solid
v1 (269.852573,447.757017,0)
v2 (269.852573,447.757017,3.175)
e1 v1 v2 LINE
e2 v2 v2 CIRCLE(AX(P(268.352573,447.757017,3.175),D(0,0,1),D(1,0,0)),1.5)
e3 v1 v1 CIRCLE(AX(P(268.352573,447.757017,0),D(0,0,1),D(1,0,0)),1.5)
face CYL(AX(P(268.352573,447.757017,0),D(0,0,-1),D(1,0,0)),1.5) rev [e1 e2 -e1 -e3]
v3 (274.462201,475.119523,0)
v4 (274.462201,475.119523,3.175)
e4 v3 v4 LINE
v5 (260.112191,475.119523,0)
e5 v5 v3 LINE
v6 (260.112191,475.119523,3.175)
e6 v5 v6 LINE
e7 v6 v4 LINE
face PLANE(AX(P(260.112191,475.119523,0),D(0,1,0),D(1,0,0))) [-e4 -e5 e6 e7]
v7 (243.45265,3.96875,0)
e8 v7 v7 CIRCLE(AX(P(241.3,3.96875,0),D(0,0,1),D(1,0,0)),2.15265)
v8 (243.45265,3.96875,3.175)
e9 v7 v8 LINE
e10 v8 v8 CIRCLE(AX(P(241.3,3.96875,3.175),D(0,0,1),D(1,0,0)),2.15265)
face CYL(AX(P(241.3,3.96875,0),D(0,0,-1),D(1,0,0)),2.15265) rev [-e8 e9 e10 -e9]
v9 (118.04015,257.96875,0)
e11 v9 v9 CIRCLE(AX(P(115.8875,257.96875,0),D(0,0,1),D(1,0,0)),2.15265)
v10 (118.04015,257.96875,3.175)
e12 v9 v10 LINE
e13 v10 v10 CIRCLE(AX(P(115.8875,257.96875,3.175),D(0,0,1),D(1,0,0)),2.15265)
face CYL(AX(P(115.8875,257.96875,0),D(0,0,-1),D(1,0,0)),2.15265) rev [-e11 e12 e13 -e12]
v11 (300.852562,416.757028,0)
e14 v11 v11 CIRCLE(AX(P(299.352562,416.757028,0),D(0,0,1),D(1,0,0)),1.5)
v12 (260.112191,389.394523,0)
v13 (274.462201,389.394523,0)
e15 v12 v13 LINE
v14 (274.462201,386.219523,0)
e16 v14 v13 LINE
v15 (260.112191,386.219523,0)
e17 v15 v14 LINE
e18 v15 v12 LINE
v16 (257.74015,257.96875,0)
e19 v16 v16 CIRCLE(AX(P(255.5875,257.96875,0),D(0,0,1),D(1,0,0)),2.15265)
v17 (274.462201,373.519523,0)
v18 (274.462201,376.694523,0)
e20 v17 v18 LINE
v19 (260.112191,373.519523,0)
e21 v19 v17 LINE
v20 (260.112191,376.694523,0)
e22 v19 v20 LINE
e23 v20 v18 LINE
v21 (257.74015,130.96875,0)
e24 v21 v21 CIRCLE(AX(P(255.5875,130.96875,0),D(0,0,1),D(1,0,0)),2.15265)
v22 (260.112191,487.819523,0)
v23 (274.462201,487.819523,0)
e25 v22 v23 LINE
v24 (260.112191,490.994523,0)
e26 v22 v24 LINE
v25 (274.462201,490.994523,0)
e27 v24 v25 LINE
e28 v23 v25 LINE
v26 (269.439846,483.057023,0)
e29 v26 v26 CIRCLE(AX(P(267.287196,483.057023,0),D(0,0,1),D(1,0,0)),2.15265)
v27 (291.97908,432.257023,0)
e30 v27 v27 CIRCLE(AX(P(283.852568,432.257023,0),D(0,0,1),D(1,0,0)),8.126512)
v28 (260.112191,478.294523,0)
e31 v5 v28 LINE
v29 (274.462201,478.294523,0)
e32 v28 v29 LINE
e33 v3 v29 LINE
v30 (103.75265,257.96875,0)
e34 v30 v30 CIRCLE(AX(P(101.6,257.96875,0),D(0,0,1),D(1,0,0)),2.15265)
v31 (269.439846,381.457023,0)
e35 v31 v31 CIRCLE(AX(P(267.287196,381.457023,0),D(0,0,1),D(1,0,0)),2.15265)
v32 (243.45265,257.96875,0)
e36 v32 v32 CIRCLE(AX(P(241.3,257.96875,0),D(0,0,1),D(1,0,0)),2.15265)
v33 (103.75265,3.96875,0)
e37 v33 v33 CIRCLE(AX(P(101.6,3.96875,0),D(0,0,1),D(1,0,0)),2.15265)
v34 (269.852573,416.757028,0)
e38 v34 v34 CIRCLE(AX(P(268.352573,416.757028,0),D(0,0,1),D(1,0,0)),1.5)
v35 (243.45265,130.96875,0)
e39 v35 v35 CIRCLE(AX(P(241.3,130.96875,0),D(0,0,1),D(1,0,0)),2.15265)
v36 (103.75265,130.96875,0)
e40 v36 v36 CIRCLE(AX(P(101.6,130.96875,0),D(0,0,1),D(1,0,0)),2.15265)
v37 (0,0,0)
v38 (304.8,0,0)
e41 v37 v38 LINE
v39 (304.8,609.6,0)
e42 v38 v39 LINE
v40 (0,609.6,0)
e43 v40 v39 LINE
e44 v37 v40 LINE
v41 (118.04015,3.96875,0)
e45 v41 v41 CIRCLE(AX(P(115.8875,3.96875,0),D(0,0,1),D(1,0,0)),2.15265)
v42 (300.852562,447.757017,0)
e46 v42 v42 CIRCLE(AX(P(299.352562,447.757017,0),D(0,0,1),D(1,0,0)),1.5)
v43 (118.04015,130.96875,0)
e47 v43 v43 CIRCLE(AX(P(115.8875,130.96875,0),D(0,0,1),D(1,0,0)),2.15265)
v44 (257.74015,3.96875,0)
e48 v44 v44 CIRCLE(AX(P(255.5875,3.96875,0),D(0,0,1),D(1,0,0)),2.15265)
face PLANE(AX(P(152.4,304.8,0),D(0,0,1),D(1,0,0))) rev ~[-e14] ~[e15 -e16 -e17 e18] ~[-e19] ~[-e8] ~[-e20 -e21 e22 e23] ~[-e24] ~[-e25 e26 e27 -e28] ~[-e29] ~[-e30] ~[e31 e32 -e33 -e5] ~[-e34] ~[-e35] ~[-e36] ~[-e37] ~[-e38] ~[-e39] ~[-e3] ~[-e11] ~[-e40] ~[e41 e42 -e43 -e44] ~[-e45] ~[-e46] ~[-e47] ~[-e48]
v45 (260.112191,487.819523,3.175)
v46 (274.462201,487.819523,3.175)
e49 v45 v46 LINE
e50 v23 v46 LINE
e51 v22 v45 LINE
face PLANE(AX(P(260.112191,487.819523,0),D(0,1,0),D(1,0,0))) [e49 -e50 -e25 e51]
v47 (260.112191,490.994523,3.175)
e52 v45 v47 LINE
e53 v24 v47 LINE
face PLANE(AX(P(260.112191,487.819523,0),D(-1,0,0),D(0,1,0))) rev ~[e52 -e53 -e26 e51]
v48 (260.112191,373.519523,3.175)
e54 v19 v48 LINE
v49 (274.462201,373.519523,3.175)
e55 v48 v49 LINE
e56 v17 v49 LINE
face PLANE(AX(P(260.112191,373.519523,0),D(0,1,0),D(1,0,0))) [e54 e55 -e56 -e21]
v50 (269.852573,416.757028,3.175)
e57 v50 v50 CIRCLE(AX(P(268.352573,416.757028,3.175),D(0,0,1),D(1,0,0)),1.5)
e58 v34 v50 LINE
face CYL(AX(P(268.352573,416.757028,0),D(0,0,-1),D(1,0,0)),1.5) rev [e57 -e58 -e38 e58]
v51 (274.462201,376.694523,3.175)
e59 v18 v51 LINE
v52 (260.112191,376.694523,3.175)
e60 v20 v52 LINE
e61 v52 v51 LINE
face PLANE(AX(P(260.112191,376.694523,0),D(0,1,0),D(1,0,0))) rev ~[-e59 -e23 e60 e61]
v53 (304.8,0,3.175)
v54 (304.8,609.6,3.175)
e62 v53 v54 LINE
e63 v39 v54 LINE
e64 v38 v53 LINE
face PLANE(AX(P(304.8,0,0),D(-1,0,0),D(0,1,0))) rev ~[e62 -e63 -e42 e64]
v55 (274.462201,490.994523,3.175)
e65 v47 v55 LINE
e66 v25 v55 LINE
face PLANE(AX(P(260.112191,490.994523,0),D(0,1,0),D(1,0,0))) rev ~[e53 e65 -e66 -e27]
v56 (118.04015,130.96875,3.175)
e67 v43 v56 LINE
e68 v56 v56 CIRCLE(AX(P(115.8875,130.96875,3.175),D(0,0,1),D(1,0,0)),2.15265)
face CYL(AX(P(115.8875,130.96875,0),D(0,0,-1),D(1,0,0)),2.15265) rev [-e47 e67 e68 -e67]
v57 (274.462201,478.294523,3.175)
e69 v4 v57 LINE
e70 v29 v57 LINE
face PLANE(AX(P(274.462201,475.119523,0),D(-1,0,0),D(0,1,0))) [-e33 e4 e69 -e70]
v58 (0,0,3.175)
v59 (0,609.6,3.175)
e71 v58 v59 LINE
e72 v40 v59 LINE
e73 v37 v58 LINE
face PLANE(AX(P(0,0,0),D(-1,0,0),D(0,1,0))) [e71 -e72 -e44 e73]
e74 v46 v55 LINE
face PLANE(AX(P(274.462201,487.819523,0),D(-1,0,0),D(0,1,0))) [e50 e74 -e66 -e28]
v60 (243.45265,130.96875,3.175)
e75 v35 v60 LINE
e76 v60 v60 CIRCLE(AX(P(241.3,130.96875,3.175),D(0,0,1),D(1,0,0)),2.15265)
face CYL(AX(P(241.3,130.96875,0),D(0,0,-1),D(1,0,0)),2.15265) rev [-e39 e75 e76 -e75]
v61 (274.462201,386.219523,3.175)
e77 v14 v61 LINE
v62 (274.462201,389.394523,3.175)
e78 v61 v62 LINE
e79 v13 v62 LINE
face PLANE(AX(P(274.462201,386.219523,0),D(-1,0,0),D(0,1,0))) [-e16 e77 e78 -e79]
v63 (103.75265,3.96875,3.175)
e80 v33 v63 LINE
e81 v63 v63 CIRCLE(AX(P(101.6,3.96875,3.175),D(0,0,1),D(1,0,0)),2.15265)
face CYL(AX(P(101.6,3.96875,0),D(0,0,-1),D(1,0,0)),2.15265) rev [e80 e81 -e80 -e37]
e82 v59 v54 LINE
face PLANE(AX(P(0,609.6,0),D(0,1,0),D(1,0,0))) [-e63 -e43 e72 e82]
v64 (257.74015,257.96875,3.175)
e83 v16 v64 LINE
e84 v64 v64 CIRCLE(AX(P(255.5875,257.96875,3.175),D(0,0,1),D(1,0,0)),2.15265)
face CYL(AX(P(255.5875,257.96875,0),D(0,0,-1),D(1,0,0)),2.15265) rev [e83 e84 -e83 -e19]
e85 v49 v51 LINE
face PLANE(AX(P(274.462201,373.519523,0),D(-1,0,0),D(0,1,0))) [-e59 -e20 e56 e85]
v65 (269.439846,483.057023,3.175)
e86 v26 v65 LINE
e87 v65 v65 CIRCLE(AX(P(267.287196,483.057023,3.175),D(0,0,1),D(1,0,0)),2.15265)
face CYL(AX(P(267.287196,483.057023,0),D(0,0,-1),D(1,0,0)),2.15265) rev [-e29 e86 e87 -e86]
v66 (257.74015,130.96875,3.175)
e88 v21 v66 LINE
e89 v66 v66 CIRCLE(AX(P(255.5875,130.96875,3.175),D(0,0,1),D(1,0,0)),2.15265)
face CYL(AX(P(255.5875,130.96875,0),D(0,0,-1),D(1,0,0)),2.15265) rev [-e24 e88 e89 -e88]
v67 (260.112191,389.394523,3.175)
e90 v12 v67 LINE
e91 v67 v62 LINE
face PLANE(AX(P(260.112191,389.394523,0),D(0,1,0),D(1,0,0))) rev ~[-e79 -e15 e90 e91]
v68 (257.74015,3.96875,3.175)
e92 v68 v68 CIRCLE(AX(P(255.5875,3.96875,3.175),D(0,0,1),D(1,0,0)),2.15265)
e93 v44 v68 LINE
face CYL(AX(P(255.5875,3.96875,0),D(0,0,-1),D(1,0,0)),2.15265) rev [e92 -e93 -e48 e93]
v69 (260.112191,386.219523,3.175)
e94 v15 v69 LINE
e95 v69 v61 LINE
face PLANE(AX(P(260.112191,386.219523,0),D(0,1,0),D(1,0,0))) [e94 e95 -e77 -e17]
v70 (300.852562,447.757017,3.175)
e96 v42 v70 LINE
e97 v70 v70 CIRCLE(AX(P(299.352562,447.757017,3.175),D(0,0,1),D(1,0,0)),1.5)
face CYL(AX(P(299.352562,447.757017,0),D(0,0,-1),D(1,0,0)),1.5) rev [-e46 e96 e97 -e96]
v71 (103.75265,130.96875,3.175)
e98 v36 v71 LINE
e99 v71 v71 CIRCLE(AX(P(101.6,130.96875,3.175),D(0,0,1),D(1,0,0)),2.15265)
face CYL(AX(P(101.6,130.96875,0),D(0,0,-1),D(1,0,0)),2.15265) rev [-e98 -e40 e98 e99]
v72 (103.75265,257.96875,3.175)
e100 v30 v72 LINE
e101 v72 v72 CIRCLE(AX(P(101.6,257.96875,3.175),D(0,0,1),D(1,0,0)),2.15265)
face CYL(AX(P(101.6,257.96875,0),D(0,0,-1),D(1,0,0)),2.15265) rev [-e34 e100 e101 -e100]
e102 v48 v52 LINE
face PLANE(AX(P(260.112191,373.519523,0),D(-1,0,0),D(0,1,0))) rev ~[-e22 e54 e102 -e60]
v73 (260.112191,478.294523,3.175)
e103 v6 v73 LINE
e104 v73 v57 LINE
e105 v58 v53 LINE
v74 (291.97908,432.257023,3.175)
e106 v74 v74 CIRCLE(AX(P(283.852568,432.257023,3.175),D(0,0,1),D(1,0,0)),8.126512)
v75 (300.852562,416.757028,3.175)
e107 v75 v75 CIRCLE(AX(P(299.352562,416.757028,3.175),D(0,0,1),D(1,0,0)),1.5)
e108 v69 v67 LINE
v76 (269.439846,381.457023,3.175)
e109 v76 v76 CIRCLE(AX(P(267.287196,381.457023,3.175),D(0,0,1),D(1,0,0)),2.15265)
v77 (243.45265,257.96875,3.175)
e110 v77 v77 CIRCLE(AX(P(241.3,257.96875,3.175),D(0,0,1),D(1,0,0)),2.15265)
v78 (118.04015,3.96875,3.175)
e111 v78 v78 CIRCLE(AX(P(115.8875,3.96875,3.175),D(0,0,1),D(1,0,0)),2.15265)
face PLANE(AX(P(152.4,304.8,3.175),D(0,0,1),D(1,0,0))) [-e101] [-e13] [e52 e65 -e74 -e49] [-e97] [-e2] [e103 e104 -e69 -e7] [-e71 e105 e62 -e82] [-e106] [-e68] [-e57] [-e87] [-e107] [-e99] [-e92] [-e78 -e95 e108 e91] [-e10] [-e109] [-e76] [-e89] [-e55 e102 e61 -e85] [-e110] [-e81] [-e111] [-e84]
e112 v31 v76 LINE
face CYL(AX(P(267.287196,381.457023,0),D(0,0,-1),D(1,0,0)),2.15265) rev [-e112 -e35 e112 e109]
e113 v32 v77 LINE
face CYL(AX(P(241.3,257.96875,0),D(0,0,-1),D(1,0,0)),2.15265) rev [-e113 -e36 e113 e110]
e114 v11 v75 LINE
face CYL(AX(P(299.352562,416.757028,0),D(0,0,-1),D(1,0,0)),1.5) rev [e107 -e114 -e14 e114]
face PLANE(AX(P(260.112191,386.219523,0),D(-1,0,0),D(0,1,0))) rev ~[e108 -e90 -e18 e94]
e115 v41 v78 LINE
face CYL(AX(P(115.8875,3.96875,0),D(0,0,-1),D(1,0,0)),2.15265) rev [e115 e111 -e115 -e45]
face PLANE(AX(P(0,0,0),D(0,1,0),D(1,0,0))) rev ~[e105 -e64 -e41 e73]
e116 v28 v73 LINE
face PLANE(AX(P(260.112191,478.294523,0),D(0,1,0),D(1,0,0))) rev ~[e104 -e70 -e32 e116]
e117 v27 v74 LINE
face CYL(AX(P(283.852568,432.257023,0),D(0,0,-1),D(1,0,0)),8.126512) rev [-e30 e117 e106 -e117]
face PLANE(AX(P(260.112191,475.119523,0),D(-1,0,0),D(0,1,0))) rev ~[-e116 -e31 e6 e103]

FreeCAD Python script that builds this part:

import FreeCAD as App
import Part
import Sketcher
from FreeCAD import Vector
Q = App.Units.Quantity


def add_polygon(sketch, points):
    """Adds a closed chain of lines whose ends are joined by coincident constraints."""
    first, n = sketch.GeometryCount, len(points)
    for a, b in zip(points, points[1:] + points[:1]):
        sketch.addGeometry(Part.LineSegment(App.Vector(*a, 0), App.Vector(*b, 0)), False)
    for i in range(n):
        sketch.addConstraint(Sketcher.Constraint("Coincident", first + i, 2, first + (i + 1) % n, 1))

doc = App.newDocument("Part")
body = doc.addObject("PartDesign::Body", "Body")

sketch1 = body.newObject("Sketcher::SketchObject", "Sketch")
sketch1.AttachmentSupport = (doc.getObject("XY_Plane"), [""])
sketch1.MapMode = "FlatFace"
add_polygon(sketch1, [(0, 609.6), (0, 0), (304.8, 0), (304.8, 609.6)])
sketch1.addGeometry(Part.Circle(Vector(101.6, 4, 0), Vector(0, 0, 1), 2.2), False)
sketch1.addGeometry(Part.Circle(Vector(115.9, 4, 0), Vector(0, 0, 1), 2.2), False)
sketch1.addGeometry(Part.Circle(Vector(101.6, 131, 0), Vector(0, 0, 1), 2.2), False)
sketch1.addGeometry(Part.Circle(Vector(115.9, 131, 0), Vector(0, 0, 1), 2.2), False)
sketch1.addGeometry(Part.Circle(Vector(241.3, 4, 0), Vector(0, 0, 1), 2.2), False)
sketch1.addGeometry(Part.Circle(Vector(255.6, 4, 0), Vector(0, 0, 1), 2.2), False)
sketch1.addGeometry(Part.Circle(Vector(241.3, 131, 0), Vector(0, 0, 1), 2.2), False)
sketch1.addGeometry(Part.Circle(Vector(255.6, 131, 0), Vector(0, 0, 1), 2.2), False)
sketch1.addGeometry(Part.Circle(Vector(101.6, 258, 0), Vector(0, 0, 1), 2.2), False)
sketch1.addGeometry(Part.Circle(Vector(115.9, 258, 0), Vector(0, 0, 1), 2.2), False)
sketch1.addGeometry(Part.Circle(Vector(241.3, 258, 0), Vector(0, 0, 1), 2.2), False)
sketch1.addGeometry(Part.Circle(Vector(255.6, 258, 0), Vector(0, 0, 1), 2.2), False)
add_polygon(sketch1, [(274.5, 373.5), (260.1, 373.5), (260.1, 376.7), (274.5, 376.7)])
sketch1.addGeometry(Part.Circle(Vector(267.3, 381.5, 0), Vector(0, 0, 1), 2.2), False)
add_polygon(sketch1, [(274.5, 386.2), (260.1, 386.2), (260.1, 389.4), (274.5, 389.4)])
sketch1.addGeometry(Part.Circle(Vector(268.4, 416.8, 0), Vector(0, 0, 1), 1.5), False)
sketch1.addGeometry(Part.Circle(Vector(299.4, 416.8, 0), Vector(0, 0, 1), 1.5), False)
sketch1.addGeometry(Part.Circle(Vector(268.4, 447.8, 0), Vector(0, 0, 1), 1.5), False)
add_polygon(sketch1, [(274.5, 475.1), (260.1, 475.1), (260.1, 478.3), (274.5, 478.3)])
sketch1.addGeometry(Part.Circle(Vector(267.3, 483.1, 0), Vector(0, 0, 1), 2.2), False)
add_polygon(sketch1, [(274.5, 487.8), (260.1, 487.8), (260.1, 491), (274.5, 491)])
sketch1.addGeometry(Part.Circle(Vector(283.9, 432.3, 0), Vector(0, 0, 1), 8.1), False)
sketch1.addGeometry(Part.Circle(Vector(299.4, 447.8, 0), Vector(0, 0, 1), 1.5), False)
sketch1.addConstraint([
    Sketcher.Constraint("Vertical", 0),
    Sketcher.Constraint("Horizontal", 1),
    Sketcher.Constraint("Vertical", 2),
    Sketcher.Constraint("Horizontal", 3),
    Sketcher.Constraint("Horizontal", 16),
    Sketcher.Constraint("Vertical", 17),
    Sketcher.Constraint("Horizontal", 18),
    Sketcher.Constraint("Vertical", 19),
    Sketcher.Constraint("Horizontal", 21),
    Sketcher.Constraint("Vertical", 22),
    Sketcher.Constraint("Horizontal", 23),
    Sketcher.Constraint("Vertical", 24),
    Sketcher.Constraint("Horizontal", 28),
    Sketcher.Constraint("Vertical", 29),
    Sketcher.Constraint("Horizontal", 30),
    Sketcher.Constraint("Vertical", 31),
    Sketcher.Constraint("Horizontal", 33),
    Sketcher.Constraint("Vertical", 34),
    Sketcher.Constraint("Horizontal", 35),
    Sketcher.Constraint("Vertical", 36),
    Sketcher.Constraint("Coincident", 0, 2, -1, 1),
    Sketcher.Constraint("Equal", 4, 5),
    Sketcher.Constraint("Equal", 5, 6),
    Sketcher.Constraint("Equal", 6, 7),
    Sketcher.Constraint("Equal", 7, 8),
    Sketcher.Constraint("Equal", 8, 9),
    Sketcher.Constraint("Equal", 9, 10),
    Sketcher.Constraint("Equal", 10, 11),
    Sketcher.Constraint("Equal", 11, 12),
    Sketcher.Constraint("Equal", 12, 13),
    Sketcher.Constraint("Equal", 13, 14),
    Sketcher.Constraint("Equal", 14, 15),
    Sketcher.Constraint("Equal", 15, 20),
    Sketcher.Constraint("Equal", 25, 26),
    Sketcher.Constraint("Equal", 26, 27),
    Sketcher.Constraint("Equal", 20, 32),
    Sketcher.Constraint("Equal", 27, 38),
    Sketcher.Constraint("Horizontal", 4, 3, 5, 3),
    Sketcher.Constraint("Horizontal", 6, 3, 7, 3),
    Sketcher.Constraint("Horizontal", 5, 3, 8, 3),
    Sketcher.Constraint("Horizontal", 8, 3, 9, 3),
    Sketcher.Constraint("Horizontal", 7, 3, 10, 3),
    Sketcher.Constraint("Horizontal", 10, 3, 11, 3),
    Sketcher.Constraint("Horizontal", 12, 3, 13, 3),
    Sketcher.Constraint("Horizontal", 13, 3, 14, 3),
    Sketcher.Constraint("Horizontal", 14, 3, 15, 3),
    Sketcher.Constraint("Horizontal", 25, 3, 26, 3),
    Sketcher.Constraint("Horizontal", 27, 3, 38, 3),
    Sketcher.Constraint("Vertical", 4, 3, 6, 3),
    Sketcher.Constraint("Vertical", 5, 3, 7, 3),
    Sketcher.Constraint("Vertical", 8, 3, 10, 3),
    Sketcher.Constraint("Vertical", 9, 3, 11, 3),
    Sketcher.Constraint("Vertical", 6, 3, 12, 3),
    Sketcher.Constraint("Vertical", 7, 3, 13, 3),
    Sketcher.Constraint("Vertical", 10, 3, 14, 3),
    Sketcher.Constraint("Vertical", 11, 3, 15, 3),
    Sketcher.Constraint("Vertical", 25, 3, 27, 3),
    Sketcher.Constraint("Vertical", 20, 3, 32, 3),
    Sketcher.Constraint("Vertical", 26, 3, 38, 3),
    Sketcher.Constraint("Vertical", 17, 2, 21, 2),
    Sketcher.Constraint("Vertical", 19, 2, 23, 2),
    Sketcher.Constraint("Vertical", 22, 2, 28, 2),
    Sketcher.Constraint("Vertical", 24, 2, 30, 2),
    Sketcher.Constraint("Vertical", 29, 2, 33, 2),
    Sketcher.Constraint("Vertical", 31, 2, 35, 2),
    Sketcher.Constraint("Equal", 19, 22),
    Sketcher.Constraint("Equal", 24, 29),
    Sketcher.Constraint("Equal", 31, 34),
    Sketcher.Constraint("DistanceX", 1, 1, 1, 2, Q("12 in")),
    Sketcher.Constraint("DistanceY", 0, 2, 0, 1, Q("24 in")),
    Sketcher.Constraint("DistanceX", -1, 1, 4, 3, Q("4 in")),
    Sketcher.Constraint("DistanceY", 4, 3, 6, 3, Q("5 in")),
    Sketcher.Constraint("DistanceY", 6, 3, 12, 3, Q("5 in")),
    Sketcher.Constraint("DistanceY", 20, 3, 32, 3, Q("4 in")),
    Sketcher.Constraint("DistanceY", 20, 3, 37, 3, Q("2 in")),
    Sketcher.Constraint("Diameter", 4, Q("0.1695 in")),
    Sketcher.Constraint("DistanceX", -1, 1, 8, 3, Q("9.5 in")),
    Sketcher.Constraint("DistanceX", 5, 3, 9, 3, Q("5.5 in")),
    Sketcher.Constraint("DistanceY", 16, 2, 21, 2, Q("0.5 in")),
    Sketcher.Constraint("DistanceY", 28, 2, 33, 2, Q("0.5 in")),
    Sketcher.Constraint("Diameter", 25, 3.0),
    Sketcher.Constraint("DistanceY", 17, 1, 17, 2, Q("0.125 in")),
    Sketcher.Constraint("DistanceY", -1, 1, 4, 3, Q("0.15625 in")),
    Sketcher.Constraint("DistanceX", -1, 1, 5, 3, Q("4.5625 in")),
    Sketcher.Constraint("DistanceY", 16, 2, 20, 3, Q("0.3125 in")),
    Sketcher.Constraint("DistanceY", 28, 2, 32, 3, Q("0.3125 in")),
    Sketcher.Constraint("Diameter", 37, 16.253024),
    Sketcher.Constraint("DistanceX", 16, 2, 16, 1, 14.35001),
    Sketcher.Constraint("DistanceX", -1, 1, 18, 2, 274.462201),
    Sketcher.Constraint("DistanceY", -1, 1, 25, 3, 416.757028),
    Sketcher.Constraint("DistanceX", -1, 1, 26, 3, 299.352562),
    Sketcher.Constraint("DistanceX", -1, 1, 37, 3, 283.852568),
    Sketcher.Constraint("DistanceX", 25, 3, 26, 3, 30.999989),
    Sketcher.Constraint("DistanceY", 25, 3, 27, 3, 30.999989),
    Sketcher.Constraint("DistanceX", -1, 1, 20, 3, 267.287196),
    Sketcher.Constraint("DistanceY", -1, 1, 20, 3, 381.457023),
])
pad1 = body.newObject("PartDesign::Pad", "Pad")
pad1.Profile = sketch1
pad1.Length = Q("0.125 in")

doc.recompute()
